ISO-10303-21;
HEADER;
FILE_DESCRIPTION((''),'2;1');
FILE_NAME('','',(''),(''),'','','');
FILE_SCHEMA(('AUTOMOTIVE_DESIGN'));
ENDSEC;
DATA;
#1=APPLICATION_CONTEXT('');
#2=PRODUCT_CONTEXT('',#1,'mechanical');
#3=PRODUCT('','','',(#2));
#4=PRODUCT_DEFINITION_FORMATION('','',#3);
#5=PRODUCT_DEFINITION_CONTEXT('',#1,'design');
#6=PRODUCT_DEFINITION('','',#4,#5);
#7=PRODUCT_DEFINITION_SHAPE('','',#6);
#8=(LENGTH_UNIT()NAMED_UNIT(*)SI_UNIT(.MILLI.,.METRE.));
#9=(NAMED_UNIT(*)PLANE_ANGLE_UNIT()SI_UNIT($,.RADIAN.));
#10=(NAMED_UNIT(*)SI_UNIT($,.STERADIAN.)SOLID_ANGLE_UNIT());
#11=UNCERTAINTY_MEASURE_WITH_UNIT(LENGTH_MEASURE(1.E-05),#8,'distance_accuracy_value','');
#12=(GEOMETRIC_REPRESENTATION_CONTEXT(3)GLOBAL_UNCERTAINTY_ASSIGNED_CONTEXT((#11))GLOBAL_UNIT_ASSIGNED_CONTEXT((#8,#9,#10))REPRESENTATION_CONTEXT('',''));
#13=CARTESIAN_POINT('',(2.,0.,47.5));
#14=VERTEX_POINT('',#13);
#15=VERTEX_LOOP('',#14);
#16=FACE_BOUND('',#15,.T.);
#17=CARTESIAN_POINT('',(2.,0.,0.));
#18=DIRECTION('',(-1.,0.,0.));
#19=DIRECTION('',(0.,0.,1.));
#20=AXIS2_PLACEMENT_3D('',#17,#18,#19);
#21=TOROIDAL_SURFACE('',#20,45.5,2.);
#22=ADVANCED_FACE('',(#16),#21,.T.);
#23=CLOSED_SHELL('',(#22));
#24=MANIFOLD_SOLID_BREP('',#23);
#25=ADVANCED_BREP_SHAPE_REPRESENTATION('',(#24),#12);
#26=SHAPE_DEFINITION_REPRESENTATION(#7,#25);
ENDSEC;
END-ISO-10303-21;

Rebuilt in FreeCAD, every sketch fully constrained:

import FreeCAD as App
import Part
import Sketcher
Q = App.Units.Quantity

doc = App.newDocument("Part")
body = doc.addObject("PartDesign::Body", "Body")

# Sketch on XY plane
sketch1 = body.newObject("Sketcher::SketchObject", "Sketch")
sketch1.AttachmentSupport = (doc.getObject("XY_Plane"), [""])
sketch1.MapMode = "FlatFace"
sketch1.addGeometry(Part.Circle(App.Vector(2, 45.5, 0), App.Vector(0, 0, 1), 2), False)
sketch1.addConstraint([
    Sketcher.Constraint("Diameter", 0, Q("4 mm")),
    Sketcher.Constraint("DistanceX", -1, 1, 0, 3, Q("2 mm")),
    Sketcher.Constraint("DistanceY", -1, 1, 0, 3, Q("45.5 mm")),
])
revolution = body.newObject("PartDesign::Revolution", "Revolution")
revolution.Profile = sketch1
revolution.ReferenceAxis = (sketch1, ["H_Axis"])
revolution.Angle = 360

doc.recompute()
